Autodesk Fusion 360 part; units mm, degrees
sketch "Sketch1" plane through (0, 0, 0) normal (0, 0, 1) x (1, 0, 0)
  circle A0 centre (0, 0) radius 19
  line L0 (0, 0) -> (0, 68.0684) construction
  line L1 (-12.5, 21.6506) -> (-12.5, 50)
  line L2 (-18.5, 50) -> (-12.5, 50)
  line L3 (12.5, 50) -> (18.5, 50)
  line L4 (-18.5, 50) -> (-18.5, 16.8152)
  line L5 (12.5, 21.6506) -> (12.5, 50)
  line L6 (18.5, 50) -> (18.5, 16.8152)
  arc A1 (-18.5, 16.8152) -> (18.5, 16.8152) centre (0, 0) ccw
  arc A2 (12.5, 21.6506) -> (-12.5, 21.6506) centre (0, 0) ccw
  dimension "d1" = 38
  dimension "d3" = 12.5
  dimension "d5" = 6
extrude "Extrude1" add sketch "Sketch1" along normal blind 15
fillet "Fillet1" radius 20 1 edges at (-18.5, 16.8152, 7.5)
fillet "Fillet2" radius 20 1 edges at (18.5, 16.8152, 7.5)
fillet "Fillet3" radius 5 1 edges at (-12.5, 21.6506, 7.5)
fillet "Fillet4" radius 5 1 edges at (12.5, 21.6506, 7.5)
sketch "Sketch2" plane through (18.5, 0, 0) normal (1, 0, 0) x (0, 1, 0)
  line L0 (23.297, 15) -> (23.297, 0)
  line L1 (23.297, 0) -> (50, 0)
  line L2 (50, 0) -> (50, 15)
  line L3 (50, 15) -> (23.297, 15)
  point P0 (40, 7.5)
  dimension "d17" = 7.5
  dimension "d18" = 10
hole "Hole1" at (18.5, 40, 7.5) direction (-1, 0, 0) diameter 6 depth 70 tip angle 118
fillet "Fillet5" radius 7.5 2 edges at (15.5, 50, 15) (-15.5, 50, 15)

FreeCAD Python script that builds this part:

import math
import FreeCAD as App
import Part
import Sketcher
Q = App.Units.Quantity


def edges_at(feature, points):
    """Names of the edges that pass closest to the given points."""
    edges = feature.Shape.Edges
    near = lambda p: min(range(len(edges)), key=lambda i: edges[i].distToShape(Part.Vertex(*p))[0])
    return sorted({f"Edge{near(p) + 1}" for p in points})

doc = App.newDocument("Part")
body = doc.addObject("PartDesign::Body", "Body")

sketch1 = body.newObject("Sketcher::SketchObject", "Sketch")
sketch1.AttachmentSupport = (doc.getObject("XY_Plane"), [""])
sketch1.MapMode = "FlatFace"
sketch1.addGeometry([
    Part.ArcOfCircle(Part.Circle(App.Vector(0, 0, 0), App.Vector(0, 0, 1), 25), math.radians(60), math.radians(120)),
    Part.LineSegment(App.Vector(-12, 22, 0), App.Vector(-12, 50, 0)),
    Part.LineSegment(App.Vector(-12, 50, 0), App.Vector(-18, 50, 0)),
    Part.LineSegment(App.Vector(-18, 50, 0), App.Vector(-18, 17, 0)),
    Part.ArcOfCircle(Part.Circle(App.Vector(0, 0, 0), App.Vector(0, 0, 1), 25), math.radians(138), math.radians(402)),
    Part.LineSegment(App.Vector(18, 17, 0), App.Vector(18, 50, 0)),
    Part.LineSegment(App.Vector(18, 50, 0), App.Vector(12, 50, 0)),
    Part.LineSegment(App.Vector(12, 50, 0), App.Vector(12, 22, 0)),
    Part.Circle(App.Vector(0, 0, 0), App.Vector(0, 0, 1), 19),
], False)
sketch1.addConstraint([
    Sketcher.Constraint("Coincident", 0, 2, 1, 1),
    Sketcher.Constraint("Coincident", 1, 2, 2, 1),
    Sketcher.Constraint("Coincident", 2, 2, 3, 1),
    Sketcher.Constraint("Coincident", 3, 2, 4, 1),
    Sketcher.Constraint("Coincident", 4, 2, 5, 1),
    Sketcher.Constraint("Coincident", 5, 2, 6, 1),
    Sketcher.Constraint("Coincident", 6, 2, 7, 1),
    Sketcher.Constraint("Coincident", 7, 2, 0, 1),
    Sketcher.Constraint("Vertical", 1),
    Sketcher.Constraint("Horizontal", 2),
    Sketcher.Constraint("Vertical", 3),
    Sketcher.Constraint("Vertical", 5),
    Sketcher.Constraint("Horizontal", 6),
    Sketcher.Constraint("Vertical", 7),
    Sketcher.Constraint("Coincident", 0, 3, -1, 1),
    Sketcher.Constraint("Coincident", 4, 3, -1, 1),
    Sketcher.Constraint("Coincident", 8, 3, -1, 1),
    Sketcher.Constraint("Equal", 0, 4),
    Sketcher.Constraint("Symmetric", 2, 2, 5, 2, -2),
    Sketcher.Constraint("Horizontal", 0, 2, 7, 2),
    Sketcher.Constraint("Diameter", 8, Q("38 mm")),
    Sketcher.Constraint("DistanceX", 2, 2, 2, 1, Q("6 mm")),
    Sketcher.Constraint("Radius", 0, Q("25 mm")),
    Sketcher.Constraint("DistanceX", 0, 2, -1, 1, Q("12.5 mm")),
    Sketcher.Constraint("DistanceY", -1, 1, 1, 2, Q("50 mm")),
])
pad1 = body.newObject("PartDesign::Pad", "Pad")
pad1.Profile = sketch1
pad1.Length = 15
doc.recompute()

fillet = body.newObject("PartDesign::Fillet", "Fillet")
fillet.Base = (pad1, edges_at(pad1, [(-18.5, 16.815, 7.5)]))
fillet.Radius = 20
doc.recompute()

fillet2 = body.newObject("PartDesign::Fillet", "Fillet001")
fillet2.Base = (fillet, edges_at(fillet, [(18.5, 16.815, 7.5)]))
fillet2.Radius = 20
doc.recompute()

fillet3 = body.newObject("PartDesign::Fillet", "Fillet002")
fillet3.Base = (fillet2, edges_at(fillet2, [(-12.5, 21.651, 7.5)]))
fillet3.Radius = 5
doc.recompute()

fillet4 = body.newObject("PartDesign::Fillet", "Fillet003")
fillet4.Base = (fillet3, edges_at(fillet3, [(12.5, 21.651, 7.5)]))
fillet4.Radius = 5

sketch2 = body.newObject("Sketcher::SketchObject", "Sketch001")
sketch2.AttachmentSupport = (doc.getObject("YZ_Plane"), [""])
sketch2.MapMode = "FlatFace"
sketch2.AttachmentOffset = App.Placement(App.Vector(0, 0, 18.5), App.Rotation())
sketch2.addGeometry(Part.Circle(App.Vector(40, 7.5, 0), App.Vector(0, 0, 1), 3), False)
sketch2.addConstraint([
    Sketcher.Constraint("Diameter", 0, Q("6 mm")),
    Sketcher.Constraint("DistanceX", -1, 1, 0, 3, Q("40 mm")),
    Sketcher.Constraint("DistanceY", -1, 1, 0, 3, Q("7.5 mm")),
])
doc.recompute()
hole = body.newObject("PartDesign::Hole", "Hole")
hole.Profile = sketch2
hole.ThreadType = "None"
hole.Diameter = 6
hole.DepthType = "Dimension"
hole.Depth = 70
hole.DrillPoint = "Angled"
hole.DrillPointAngle = 118
doc.recompute()

fillet5 = body.newObject("PartDesign::Fillet", "Fillet004")
fillet5.Base = (hole, edges_at(hole, [(15.5, 50, 15), (-15.5, 50, 15)]))
fillet5.Radius = 7.5

doc.recompute()
